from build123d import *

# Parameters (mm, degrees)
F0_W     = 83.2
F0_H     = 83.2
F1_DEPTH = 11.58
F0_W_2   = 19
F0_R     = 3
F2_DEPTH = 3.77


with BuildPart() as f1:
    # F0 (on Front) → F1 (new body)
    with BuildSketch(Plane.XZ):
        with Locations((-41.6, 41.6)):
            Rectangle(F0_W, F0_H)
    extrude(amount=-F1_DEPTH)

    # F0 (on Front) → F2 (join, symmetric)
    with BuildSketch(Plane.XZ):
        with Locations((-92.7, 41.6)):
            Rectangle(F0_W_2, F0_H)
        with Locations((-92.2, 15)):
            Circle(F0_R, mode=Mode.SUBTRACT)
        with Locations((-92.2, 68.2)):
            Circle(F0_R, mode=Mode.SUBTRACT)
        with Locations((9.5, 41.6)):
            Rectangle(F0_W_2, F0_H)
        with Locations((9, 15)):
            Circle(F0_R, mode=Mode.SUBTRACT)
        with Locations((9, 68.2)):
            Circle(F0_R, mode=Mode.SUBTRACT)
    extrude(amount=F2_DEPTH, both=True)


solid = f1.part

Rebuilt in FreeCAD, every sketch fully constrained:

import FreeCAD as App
import Part
import Sketcher
from FreeCAD import Vector
Q = App.Units.Quantity

doc = App.newDocument("Part")
params = doc.addObject("Spreadsheet::Sheet", "Params")
for row, (alias, value) in enumerate([
    ("sketch1_width", "83.2 mm"),
    ("pad1_length", "11.58 mm"),
    ("sketch2_diameter", "6 mm"),
    ("sketch2_width", "19 mm"),
    ("sketch2_height", "83.2 mm"),
    ("pad2_length", "7.54 mm"),
], start=1):
    params.set(f"A{row}", alias)
    params.set(f"B{row}", "=" + value)
    params.setAlias(f"B{row}", alias)

body = doc.addObject("PartDesign::Body", "Body")

sketch1 = body.newObject("Sketcher::SketchObject", "Sketch")
sketch1.AttachmentSupport = (doc.getObject("XZ_Plane"), [""])
sketch1.MapMode = "FlatFace"
sketch1.addGeometry(Part.LineSegment(Vector(-83, 83, 0), Vector(-83, 0, 0)), False)
sketch1.addGeometry(Part.LineSegment(Vector(-83, 0, 0), Vector(0, 0, 0)), False)
sketch1.addGeometry(Part.LineSegment(Vector(0, 0, 0), Vector(0, 83, 0)), False)
sketch1.addGeometry(Part.LineSegment(Vector(0, 83, 0), Vector(-83, 83, 0)), False)
sketch1.addConstraint(Sketcher.Constraint("Coincident", 0, 2, 1, 1))
sketch1.addConstraint(Sketcher.Constraint("Coincident", 1, 2, 2, 1))
sketch1.addConstraint(Sketcher.Constraint("Coincident", 2, 2, 3, 1))
sketch1.addConstraint(Sketcher.Constraint("Coincident", 3, 2, 0, 1))
sketch1.addConstraint(Sketcher.Constraint("Vertical", 0))
sketch1.addConstraint(Sketcher.Constraint("Horizontal", 1))
sketch1.addConstraint(Sketcher.Constraint("Vertical", 2))
sketch1.addConstraint(Sketcher.Constraint("Horizontal", 3))
sketch1.addConstraint(Sketcher.Constraint("Coincident", 1, 2, -1, 1))
sketch1.addConstraint(Sketcher.Constraint("Equal", 3, 0))
sketch1.addConstraint(Sketcher.Constraint("DistanceX", 1, 1, 1, 2, Q("83.2 mm")))
sketch1.setExpression("Constraints[10]", "Params.sketch1_width")
pad1 = body.newObject("PartDesign::Pad", "Pad")
pad1.Profile = sketch1
pad1.setExpression("Length", "Params.pad1_length")
pad1.Reversed = True

sketch2 = body.newObject("Sketcher::SketchObject", "Sketch001")
sketch2.AttachmentSupport = (doc.getObject("XZ_Plane"), [""])
sketch2.MapMode = "FlatFace"
sketch2.addGeometry(Part.LineSegment(Vector(-102.2, 83.2, 0), Vector(-102.2, 0, 0)), False)
sketch2.addGeometry(Part.LineSegment(Vector(-102.2, 0, 0), Vector(-83.2, 0, 0)), False)
sketch2.addGeometry(Part.LineSegment(Vector(-83.2, 0, 0), Vector(-83.2, 83.2, 0)), False)
sketch2.addGeometry(Part.LineSegment(Vector(-83.2, 83.2, 0), Vector(-102.2, 83.2, 0)), False)
sketch2.addGeometry(Part.Circle(Vector(-92.2, 15, 0), Vector(0, 0, 1), 3), False)
sketch2.addGeometry(Part.Circle(Vector(-92.2, 68.2, 0), Vector(0, 0, 1), 3), False)
sketch2.addGeometry(Part.LineSegment(Vector(0, 83.2, 0), Vector(0, 0, 0)), False)
sketch2.addGeometry(Part.LineSegment(Vector(0, 0, 0), Vector(19, 0, 0)), False)
sketch2.addGeometry(Part.LineSegment(Vector(19, 0, 0), Vector(19, 83.2, 0)), False)
sketch2.addGeometry(Part.LineSegment(Vector(19, 83.2, 0), Vector(0, 83.2, 0)), False)
sketch2.addGeometry(Part.Circle(Vector(9, 15, 0), Vector(0, 0, 1), 3), False)
sketch2.addGeometry(Part.Circle(Vector(9, 68.2, 0), Vector(0, 0, 1), 3), False)
sketch2.addConstraint(Sketcher.Constraint("Coincident", 0, 2, 1, 1))
sketch2.addConstraint(Sketcher.Constraint("Coincident", 1, 2, 2, 1))
sketch2.addConstraint(Sketcher.Constraint("Coincident", 2, 2, 3, 1))
sketch2.addConstraint(Sketcher.Constraint("Coincident", 3, 2, 0, 1))
sketch2.addConstraint(Sketcher.Constraint("Coincident", 6, 2, 7, 1))
sketch2.addConstraint(Sketcher.Constraint("Coincident", 7, 2, 8, 1))
sketch2.addConstraint(Sketcher.Constraint("Coincident", 8, 2, 9, 1))
sketch2.addConstraint(Sketcher.Constraint("Coincident", 9, 2, 6, 1))
sketch2.addConstraint(Sketcher.Constraint("Vertical", 0))
sketch2.addConstraint(Sketcher.Constraint("Horizontal", 1))
sketch2.addConstraint(Sketcher.Constraint("Vertical", 2))
sketch2.addConstraint(Sketcher.Constraint("Horizontal", 3))
sketch2.addConstraint(Sketcher.Constraint("Vertical", 6))
sketch2.addConstraint(Sketcher.Constraint("Horizontal", 7))
sketch2.addConstraint(Sketcher.Constraint("Vertical", 8))
sketch2.addConstraint(Sketcher.Constraint("Horizontal", 9))
sketch2.addConstraint(Sketcher.Constraint("Coincident", 6, 2, -1, 1))
sketch2.addConstraint(Sketcher.Constraint("Equal", 4, 5))
sketch2.addConstraint(Sketcher.Constraint("Equal", 5, 10))
sketch2.addConstraint(Sketcher.Constraint("Equal", 10, 11))
sketch2.addConstraint(Sketcher.Constraint("PointOnObject", 0, 2, -1))
sketch2.addConstraint(Sketcher.Constraint("Horizontal", 4, 3, 10, 3))
sketch2.addConstraint(Sketcher.Constraint("Horizontal", 5, 3, 11, 3))
sketch2.addConstraint(Sketcher.Constraint("Horizontal", 3, 2, 8, 2))
sketch2.addConstraint(Sketcher.Constraint("Vertical", 4, 3, 5, 3))
sketch2.addConstraint(Sketcher.Constraint("Vertical", 10, 3, 11, 3))
sketch2.addConstraint(Sketcher.Constraint("Equal", 3, 7))
sketch2.addConstraint(Sketcher.Constraint("Diameter", 4, Q("6 mm")))
sketch2.addConstraint(Sketcher.Constraint("DistanceX", 1, 1, 1, 2, Q("19 mm")))
sketch2.addConstraint(Sketcher.Constraint("DistanceY", 0, 2, 0, 1, Q("83.2 mm")))
sketch2.addConstraint(Sketcher.Constraint("DistanceY", -1, 1, 4, 3, Q("15 mm")))
sketch2.addConstraint(Sketcher.Constraint("DistanceX", -1, 1, 10, 3, Q("9 mm")))
sketch2.addConstraint(Sketcher.Constraint("DistanceX", 0, 2, 4, 3, Q("10 mm")))
sketch2.addConstraint(Sketcher.Constraint("DistanceY", 5, 3, 2, 2, Q("15 mm")))
sketch2.addConstraint(Sketcher.Constraint("DistanceX", 4, 3, -1, 1, Q("92.2 mm")))
sketch2.setExpression("Constraints[27]", "Params.sketch2_diameter")
sketch2.setExpression("Constraints[28]", "Params.sketch2_width")
sketch2.setExpression("Constraints[29]", "Params.sketch2_height")
pad2 = body.newObject("PartDesign::Pad", "Pad001")
pad2.Profile = sketch2
pad2.setExpression("Length", "Params.pad2_length")
pad2.Midplane = True

doc.recompute()
